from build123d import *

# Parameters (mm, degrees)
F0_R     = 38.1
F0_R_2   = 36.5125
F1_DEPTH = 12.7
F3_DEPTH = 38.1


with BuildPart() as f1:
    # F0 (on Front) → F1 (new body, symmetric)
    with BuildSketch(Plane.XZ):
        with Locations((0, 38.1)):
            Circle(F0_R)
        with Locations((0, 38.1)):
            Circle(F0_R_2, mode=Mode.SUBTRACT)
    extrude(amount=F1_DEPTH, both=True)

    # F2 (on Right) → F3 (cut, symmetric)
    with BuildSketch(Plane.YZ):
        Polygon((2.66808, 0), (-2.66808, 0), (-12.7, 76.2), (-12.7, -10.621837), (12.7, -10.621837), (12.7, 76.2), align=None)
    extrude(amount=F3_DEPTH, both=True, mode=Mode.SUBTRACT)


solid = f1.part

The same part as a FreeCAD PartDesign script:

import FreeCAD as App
import Part
import Sketcher

V = App.Vector
Q = App.Units.Quantity


def add_polygon(sketch, points):
    """Adds a closed chain of lines whose ends are joined by coincident constraints."""
    first, n = sketch.GeometryCount, len(points)
    for a, b in zip(points, points[1:] + points[:1]):
        sketch.addGeometry(Part.LineSegment(App.Vector(*a, 0), App.Vector(*b, 0)), False)
    for i in range(n):
        sketch.addConstraint(Sketcher.Constraint("Coincident", first + i, 2, first + (i + 1) % n, 1))

doc = App.newDocument("Part")
body = doc.addObject("PartDesign::Body", "Body")

sketch1 = body.newObject("Sketcher::SketchObject", "Sketch")
sketch1.AttachmentSupport = (doc.getObject("XZ_Plane"), [""])
sketch1.MapMode = "FlatFace"
sketch1.addGeometry([
    Part.Circle(V(0, 38, 0), V(0, 0, 1), 38),
    Part.Circle(V(0, 38, 0), V(0, 0, 1), 37),
], False)
sketch1.addConstraint([
    Sketcher.Constraint("Coincident", 1, 3, 0, 3),
    Sketcher.Constraint("PointOnObject", 0, 3, -2),
    Sketcher.Constraint("Diameter", 0, Q("3 in")),
    Sketcher.Constraint("Diameter", 1, Q("2.875 in")),
    Sketcher.Constraint("DistanceY", -1, 1, 0, 3, Q("1.5 in")),
])
pad1 = body.newObject("PartDesign::Pad", "Pad")
pad1.Profile = sketch1
pad1.Length = Q("1 in")
pad1.Midplane = True

sketch2 = body.newObject("Sketcher::SketchObject", "Sketch001")
sketch2.AttachmentSupport = (doc.getObject("YZ_Plane"), [""])
sketch2.MapMode = "FlatFace"
add_polygon(sketch2, [(3, 0), (-3, 0), (-13, 76), (-13, -11), (13, -11), (13, 76)])
sketch2.addConstraint([
    Sketcher.Constraint("Horizontal", 0),
    Sketcher.Constraint("Vertical", 2),
    Sketcher.Constraint("Horizontal", 3),
    Sketcher.Constraint("Vertical", 4),
    Sketcher.Constraint("Symmetric", 0, 2, 5, 2, -1, 1),
    Sketcher.Constraint("Symmetric", 1, 2, 4, 2, -2),
    Sketcher.Constraint("DistanceX", 3, 1, 3, 2, Q("1 in")),
    Sketcher.Constraint("DistanceY", -1, 1, 1, 2, Q("3 in")),
    Sketcher.Constraint("Angle", 1, Q("97.5 deg")),
    Sketcher.Constraint("DistanceY", 2, 2, 2, 1, 86.821837),
])
pocket1 = body.newObject("PartDesign::Pocket", "Pocket")
pocket1.Profile = sketch2
pocket1.Length = Q("3 in")
pocket1.Midplane = True

doc.recompute()
